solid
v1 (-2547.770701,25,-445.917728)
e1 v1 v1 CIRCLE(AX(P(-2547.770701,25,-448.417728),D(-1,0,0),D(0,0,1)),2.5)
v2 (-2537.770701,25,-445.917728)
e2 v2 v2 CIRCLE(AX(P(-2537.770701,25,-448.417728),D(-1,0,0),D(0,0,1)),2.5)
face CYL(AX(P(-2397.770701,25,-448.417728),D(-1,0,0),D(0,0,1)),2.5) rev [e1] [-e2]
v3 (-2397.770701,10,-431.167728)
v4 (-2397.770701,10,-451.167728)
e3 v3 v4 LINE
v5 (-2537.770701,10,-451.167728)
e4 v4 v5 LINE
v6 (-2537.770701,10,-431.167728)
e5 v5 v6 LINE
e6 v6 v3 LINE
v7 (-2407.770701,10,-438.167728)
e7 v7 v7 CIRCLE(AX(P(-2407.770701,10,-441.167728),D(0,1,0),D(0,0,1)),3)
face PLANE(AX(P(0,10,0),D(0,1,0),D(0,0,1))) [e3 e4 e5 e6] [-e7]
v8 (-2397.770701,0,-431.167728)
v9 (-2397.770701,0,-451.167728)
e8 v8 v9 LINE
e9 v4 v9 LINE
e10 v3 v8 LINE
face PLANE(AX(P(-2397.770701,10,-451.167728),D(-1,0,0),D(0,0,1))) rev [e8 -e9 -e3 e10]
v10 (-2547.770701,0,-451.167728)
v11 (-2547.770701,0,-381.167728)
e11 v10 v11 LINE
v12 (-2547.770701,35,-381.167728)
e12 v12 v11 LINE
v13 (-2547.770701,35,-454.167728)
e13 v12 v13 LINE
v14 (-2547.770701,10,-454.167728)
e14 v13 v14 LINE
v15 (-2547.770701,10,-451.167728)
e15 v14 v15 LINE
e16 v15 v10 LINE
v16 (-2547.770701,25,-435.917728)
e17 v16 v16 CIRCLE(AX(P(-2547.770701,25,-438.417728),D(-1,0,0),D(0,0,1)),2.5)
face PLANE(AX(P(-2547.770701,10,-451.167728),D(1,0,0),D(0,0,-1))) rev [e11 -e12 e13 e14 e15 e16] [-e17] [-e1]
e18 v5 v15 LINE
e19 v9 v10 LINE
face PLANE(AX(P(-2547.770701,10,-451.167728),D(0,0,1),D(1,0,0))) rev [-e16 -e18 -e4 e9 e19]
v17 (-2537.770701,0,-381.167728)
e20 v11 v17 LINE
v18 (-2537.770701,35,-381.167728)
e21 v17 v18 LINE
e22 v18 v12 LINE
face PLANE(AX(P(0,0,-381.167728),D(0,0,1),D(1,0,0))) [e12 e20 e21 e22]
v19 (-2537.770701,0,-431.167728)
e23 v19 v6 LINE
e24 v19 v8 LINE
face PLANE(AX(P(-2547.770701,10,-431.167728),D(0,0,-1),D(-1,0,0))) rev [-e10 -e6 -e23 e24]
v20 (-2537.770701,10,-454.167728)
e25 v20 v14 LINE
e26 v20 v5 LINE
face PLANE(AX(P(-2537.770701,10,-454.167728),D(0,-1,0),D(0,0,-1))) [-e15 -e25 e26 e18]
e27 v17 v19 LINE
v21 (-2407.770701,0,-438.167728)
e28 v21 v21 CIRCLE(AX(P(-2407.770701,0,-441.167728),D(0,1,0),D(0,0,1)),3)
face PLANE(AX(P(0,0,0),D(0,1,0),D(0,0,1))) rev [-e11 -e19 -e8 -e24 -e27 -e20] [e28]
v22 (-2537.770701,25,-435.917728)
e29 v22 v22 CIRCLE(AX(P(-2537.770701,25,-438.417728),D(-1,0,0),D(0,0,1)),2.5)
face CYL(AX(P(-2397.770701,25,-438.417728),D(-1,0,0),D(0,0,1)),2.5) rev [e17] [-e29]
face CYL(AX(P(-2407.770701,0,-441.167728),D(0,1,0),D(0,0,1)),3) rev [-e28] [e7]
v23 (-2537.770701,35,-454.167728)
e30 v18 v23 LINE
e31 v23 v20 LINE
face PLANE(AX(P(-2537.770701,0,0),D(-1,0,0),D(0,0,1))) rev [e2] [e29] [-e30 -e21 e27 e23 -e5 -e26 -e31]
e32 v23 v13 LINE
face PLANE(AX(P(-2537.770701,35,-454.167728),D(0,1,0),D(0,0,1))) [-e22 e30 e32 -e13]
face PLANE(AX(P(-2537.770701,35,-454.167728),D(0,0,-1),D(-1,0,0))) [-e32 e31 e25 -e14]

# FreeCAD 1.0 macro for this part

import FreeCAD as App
import Part
import Sketcher
from FreeCAD import Vector


def add_polygon(sketch, points):
    """Adds a closed chain of lines whose ends are joined by coincident constraints."""
    first, n = sketch.GeometryCount, len(points)
    for a, b in zip(points, points[1:] + points[:1]):
        sketch.addGeometry(Part.LineSegment(App.Vector(*a, 0), App.Vector(*b, 0)), False)
    for i in range(n):
        sketch.addConstraint(Sketcher.Constraint("Coincident", first + i, 2, first + (i + 1) % n, 1))

doc = App.newDocument("Part")
body = doc.addObject("PartDesign::Body", "Body")

# Sketch on XZ plane
sketch1 = body.newObject("Sketcher::SketchObject", "Sketch")
sketch1.AttachmentSupport = (doc.getObject("XZ_Plane"), [""])
sketch1.MapMode = "FlatFace"
add_polygon(sketch1, [(-2547.770701, -451.167728), (-2547.770701, -431.167728), (-2397.770701, -431.167728), (-2397.770701, -451.167728)])  # lines 0-3
sketch1.addConstraint([
    Sketcher.Constraint("Vertical", 0),
    Sketcher.Constraint("Horizontal", 1),
    Sketcher.Constraint("Vertical", 2),
    Sketcher.Constraint("Horizontal", 3),
    Sketcher.Constraint("DistanceX", 1, 1, 1, 2, 150.0),
    Sketcher.Constraint("DistanceY", 0, 1, 0, 2, 20.0),
    Sketcher.Constraint("DistanceX", 0, 2, -1, 1, 2547.770701),
    Sketcher.Constraint("DistanceY", 0, 2, -1, 1, 431.167728),
])
pad1 = body.newObject("PartDesign::Pad", "Pad")
pad1.Profile = sketch1
pad1.Length = 10
pad1.Reversed = True

# Sketch on XZ plane
sketch2 = body.newObject("Sketcher::SketchObject", "Sketch001")
sketch2.AttachmentSupport = (doc.getObject("XZ_Plane"), [""])
sketch2.MapMode = "FlatFace"
sketch2.AttachmentOffset = App.Placement(Vector(0, 0, -10), App.Rotation())
sketch2.addGeometry(Part.Circle(Vector(-2407.770701, -441.167728, 0), Vector(0, 0, 1), 3), False)
sketch2.addConstraint([
    Sketcher.Constraint("Diameter", 0, 6.0),
    Sketcher.Constraint("DistanceX", 0, 3, -1, 1, 2407.770701),
    Sketcher.Constraint("DistanceY", 0, 3, -1, 1, 441.167728),
])
pocket1 = body.newObject("PartDesign::Pocket", "Pocket")
pocket1.Profile = sketch2
pocket1.Length = 10
pocket1.Reversed = True

# Sketch on YZ plane
sketch3 = body.newObject("Sketcher::SketchObject", "Sketch002")
sketch3.AttachmentSupport = (doc.getObject("YZ_Plane"), [""])
sketch3.MapMode = "FlatFace"
sketch3.AttachmentOffset = App.Placement(Vector(0, 0, -2547.770701), App.Rotation())
add_polygon(sketch3, [(35, -454.167728), (10, -454.167728), (10, -431.167728), (35, -431.167728)])  # lines 0-3
sketch3.addConstraint([
    Sketcher.Constraint("Horizontal", 0),
    Sketcher.Constraint("Vertical", 1),
    Sketcher.Constraint("Horizontal", 2),
    Sketcher.Constraint("Vertical", 3),
    Sketcher.Constraint("DistanceX", 0, 2, 0, 1, 25.0),
    Sketcher.Constraint("DistanceY", 1, 1, 1, 2, 23.0),
    Sketcher.Constraint("DistanceX", -1, 1, 0, 2, 10.0),
    Sketcher.Constraint("DistanceY", 0, 2, -1, 1, 454.167728),
])
pad2 = body.newObject("PartDesign::Pad", "Pad001")
pad2.Profile = sketch3
pad2.Length = 10

# Sketch on YZ plane
sketch4 = body.newObject("Sketcher::SketchObject", "Sketch003")
sketch4.AttachmentSupport = (doc.getObject("YZ_Plane"), [""])
sketch4.MapMode = "FlatFace"
sketch4.AttachmentOffset = App.Placement(Vector(0, 0, -2547.770701), App.Rotation())
sketch4.addGeometry([
    Part.Circle(Vector(25, -448.417728, 0), Vector(0, 0, 1), 2.5),
    Part.Circle(Vector(25, -438.417728, 0), Vector(0, 0, 1), 2.5),
], False)
sketch4.addConstraint([
    Sketcher.Constraint("Equal", 0, 1),
    Sketcher.Constraint("Vertical", 0, 3, 1, 3),
    Sketcher.Constraint("Diameter", 0, 5.0),
    Sketcher.Constraint("DistanceX", -1, 1, 0, 3, 25.0),
    Sketcher.Constraint("DistanceY", 0, 3, 1, 3, 10.0),
    Sketcher.Constraint("DistanceY", 0, 3, -1, 1, 448.417728),
])
pocket2 = body.newObject("PartDesign::Pocket", "Pocket001")
pocket2.Profile = sketch4
pocket2.Type = "ThroughAll"
pocket2.Reversed = True

# Sketch on XY plane
sketch5 = body.newObject("Sketcher::SketchObject", "Sketch004")
sketch5.AttachmentSupport = (doc.getObject("XY_Plane"), [""])
sketch5.MapMode = "FlatFace"
sketch5.AttachmentOffset = App.Placement(Vector(0, 0, -431.167728), App.Rotation())
add_polygon(sketch5, [(-2547.770701, 35), (-2547.770701, 0), (-2537.770701, 0), (-2537.770701, 35)])  # lines 0-3
sketch5.addConstraint([
    Sketcher.Constraint("Vertical", 0),
    Sketcher.Constraint("Horizontal", 1),
    Sketcher.Constraint("Vertical", 2),
    Sketcher.Constraint("Horizontal", 3),
    Sketcher.Constraint("PointOnObject", 0, 2, -1),
    Sketcher.Constraint("DistanceX", 1, 1, 1, 2, 10.0),
    Sketcher.Constraint("DistanceY", 0, 2, 0, 1, 35.0),
    Sketcher.Constraint("DistanceX", 0, 2, -1, 1, 2547.770701),
])
pad3 = body.newObject("PartDesign::Pad", "Pad002")
pad3.Profile = sketch5
pad3.Length = 50

doc.recompute()
